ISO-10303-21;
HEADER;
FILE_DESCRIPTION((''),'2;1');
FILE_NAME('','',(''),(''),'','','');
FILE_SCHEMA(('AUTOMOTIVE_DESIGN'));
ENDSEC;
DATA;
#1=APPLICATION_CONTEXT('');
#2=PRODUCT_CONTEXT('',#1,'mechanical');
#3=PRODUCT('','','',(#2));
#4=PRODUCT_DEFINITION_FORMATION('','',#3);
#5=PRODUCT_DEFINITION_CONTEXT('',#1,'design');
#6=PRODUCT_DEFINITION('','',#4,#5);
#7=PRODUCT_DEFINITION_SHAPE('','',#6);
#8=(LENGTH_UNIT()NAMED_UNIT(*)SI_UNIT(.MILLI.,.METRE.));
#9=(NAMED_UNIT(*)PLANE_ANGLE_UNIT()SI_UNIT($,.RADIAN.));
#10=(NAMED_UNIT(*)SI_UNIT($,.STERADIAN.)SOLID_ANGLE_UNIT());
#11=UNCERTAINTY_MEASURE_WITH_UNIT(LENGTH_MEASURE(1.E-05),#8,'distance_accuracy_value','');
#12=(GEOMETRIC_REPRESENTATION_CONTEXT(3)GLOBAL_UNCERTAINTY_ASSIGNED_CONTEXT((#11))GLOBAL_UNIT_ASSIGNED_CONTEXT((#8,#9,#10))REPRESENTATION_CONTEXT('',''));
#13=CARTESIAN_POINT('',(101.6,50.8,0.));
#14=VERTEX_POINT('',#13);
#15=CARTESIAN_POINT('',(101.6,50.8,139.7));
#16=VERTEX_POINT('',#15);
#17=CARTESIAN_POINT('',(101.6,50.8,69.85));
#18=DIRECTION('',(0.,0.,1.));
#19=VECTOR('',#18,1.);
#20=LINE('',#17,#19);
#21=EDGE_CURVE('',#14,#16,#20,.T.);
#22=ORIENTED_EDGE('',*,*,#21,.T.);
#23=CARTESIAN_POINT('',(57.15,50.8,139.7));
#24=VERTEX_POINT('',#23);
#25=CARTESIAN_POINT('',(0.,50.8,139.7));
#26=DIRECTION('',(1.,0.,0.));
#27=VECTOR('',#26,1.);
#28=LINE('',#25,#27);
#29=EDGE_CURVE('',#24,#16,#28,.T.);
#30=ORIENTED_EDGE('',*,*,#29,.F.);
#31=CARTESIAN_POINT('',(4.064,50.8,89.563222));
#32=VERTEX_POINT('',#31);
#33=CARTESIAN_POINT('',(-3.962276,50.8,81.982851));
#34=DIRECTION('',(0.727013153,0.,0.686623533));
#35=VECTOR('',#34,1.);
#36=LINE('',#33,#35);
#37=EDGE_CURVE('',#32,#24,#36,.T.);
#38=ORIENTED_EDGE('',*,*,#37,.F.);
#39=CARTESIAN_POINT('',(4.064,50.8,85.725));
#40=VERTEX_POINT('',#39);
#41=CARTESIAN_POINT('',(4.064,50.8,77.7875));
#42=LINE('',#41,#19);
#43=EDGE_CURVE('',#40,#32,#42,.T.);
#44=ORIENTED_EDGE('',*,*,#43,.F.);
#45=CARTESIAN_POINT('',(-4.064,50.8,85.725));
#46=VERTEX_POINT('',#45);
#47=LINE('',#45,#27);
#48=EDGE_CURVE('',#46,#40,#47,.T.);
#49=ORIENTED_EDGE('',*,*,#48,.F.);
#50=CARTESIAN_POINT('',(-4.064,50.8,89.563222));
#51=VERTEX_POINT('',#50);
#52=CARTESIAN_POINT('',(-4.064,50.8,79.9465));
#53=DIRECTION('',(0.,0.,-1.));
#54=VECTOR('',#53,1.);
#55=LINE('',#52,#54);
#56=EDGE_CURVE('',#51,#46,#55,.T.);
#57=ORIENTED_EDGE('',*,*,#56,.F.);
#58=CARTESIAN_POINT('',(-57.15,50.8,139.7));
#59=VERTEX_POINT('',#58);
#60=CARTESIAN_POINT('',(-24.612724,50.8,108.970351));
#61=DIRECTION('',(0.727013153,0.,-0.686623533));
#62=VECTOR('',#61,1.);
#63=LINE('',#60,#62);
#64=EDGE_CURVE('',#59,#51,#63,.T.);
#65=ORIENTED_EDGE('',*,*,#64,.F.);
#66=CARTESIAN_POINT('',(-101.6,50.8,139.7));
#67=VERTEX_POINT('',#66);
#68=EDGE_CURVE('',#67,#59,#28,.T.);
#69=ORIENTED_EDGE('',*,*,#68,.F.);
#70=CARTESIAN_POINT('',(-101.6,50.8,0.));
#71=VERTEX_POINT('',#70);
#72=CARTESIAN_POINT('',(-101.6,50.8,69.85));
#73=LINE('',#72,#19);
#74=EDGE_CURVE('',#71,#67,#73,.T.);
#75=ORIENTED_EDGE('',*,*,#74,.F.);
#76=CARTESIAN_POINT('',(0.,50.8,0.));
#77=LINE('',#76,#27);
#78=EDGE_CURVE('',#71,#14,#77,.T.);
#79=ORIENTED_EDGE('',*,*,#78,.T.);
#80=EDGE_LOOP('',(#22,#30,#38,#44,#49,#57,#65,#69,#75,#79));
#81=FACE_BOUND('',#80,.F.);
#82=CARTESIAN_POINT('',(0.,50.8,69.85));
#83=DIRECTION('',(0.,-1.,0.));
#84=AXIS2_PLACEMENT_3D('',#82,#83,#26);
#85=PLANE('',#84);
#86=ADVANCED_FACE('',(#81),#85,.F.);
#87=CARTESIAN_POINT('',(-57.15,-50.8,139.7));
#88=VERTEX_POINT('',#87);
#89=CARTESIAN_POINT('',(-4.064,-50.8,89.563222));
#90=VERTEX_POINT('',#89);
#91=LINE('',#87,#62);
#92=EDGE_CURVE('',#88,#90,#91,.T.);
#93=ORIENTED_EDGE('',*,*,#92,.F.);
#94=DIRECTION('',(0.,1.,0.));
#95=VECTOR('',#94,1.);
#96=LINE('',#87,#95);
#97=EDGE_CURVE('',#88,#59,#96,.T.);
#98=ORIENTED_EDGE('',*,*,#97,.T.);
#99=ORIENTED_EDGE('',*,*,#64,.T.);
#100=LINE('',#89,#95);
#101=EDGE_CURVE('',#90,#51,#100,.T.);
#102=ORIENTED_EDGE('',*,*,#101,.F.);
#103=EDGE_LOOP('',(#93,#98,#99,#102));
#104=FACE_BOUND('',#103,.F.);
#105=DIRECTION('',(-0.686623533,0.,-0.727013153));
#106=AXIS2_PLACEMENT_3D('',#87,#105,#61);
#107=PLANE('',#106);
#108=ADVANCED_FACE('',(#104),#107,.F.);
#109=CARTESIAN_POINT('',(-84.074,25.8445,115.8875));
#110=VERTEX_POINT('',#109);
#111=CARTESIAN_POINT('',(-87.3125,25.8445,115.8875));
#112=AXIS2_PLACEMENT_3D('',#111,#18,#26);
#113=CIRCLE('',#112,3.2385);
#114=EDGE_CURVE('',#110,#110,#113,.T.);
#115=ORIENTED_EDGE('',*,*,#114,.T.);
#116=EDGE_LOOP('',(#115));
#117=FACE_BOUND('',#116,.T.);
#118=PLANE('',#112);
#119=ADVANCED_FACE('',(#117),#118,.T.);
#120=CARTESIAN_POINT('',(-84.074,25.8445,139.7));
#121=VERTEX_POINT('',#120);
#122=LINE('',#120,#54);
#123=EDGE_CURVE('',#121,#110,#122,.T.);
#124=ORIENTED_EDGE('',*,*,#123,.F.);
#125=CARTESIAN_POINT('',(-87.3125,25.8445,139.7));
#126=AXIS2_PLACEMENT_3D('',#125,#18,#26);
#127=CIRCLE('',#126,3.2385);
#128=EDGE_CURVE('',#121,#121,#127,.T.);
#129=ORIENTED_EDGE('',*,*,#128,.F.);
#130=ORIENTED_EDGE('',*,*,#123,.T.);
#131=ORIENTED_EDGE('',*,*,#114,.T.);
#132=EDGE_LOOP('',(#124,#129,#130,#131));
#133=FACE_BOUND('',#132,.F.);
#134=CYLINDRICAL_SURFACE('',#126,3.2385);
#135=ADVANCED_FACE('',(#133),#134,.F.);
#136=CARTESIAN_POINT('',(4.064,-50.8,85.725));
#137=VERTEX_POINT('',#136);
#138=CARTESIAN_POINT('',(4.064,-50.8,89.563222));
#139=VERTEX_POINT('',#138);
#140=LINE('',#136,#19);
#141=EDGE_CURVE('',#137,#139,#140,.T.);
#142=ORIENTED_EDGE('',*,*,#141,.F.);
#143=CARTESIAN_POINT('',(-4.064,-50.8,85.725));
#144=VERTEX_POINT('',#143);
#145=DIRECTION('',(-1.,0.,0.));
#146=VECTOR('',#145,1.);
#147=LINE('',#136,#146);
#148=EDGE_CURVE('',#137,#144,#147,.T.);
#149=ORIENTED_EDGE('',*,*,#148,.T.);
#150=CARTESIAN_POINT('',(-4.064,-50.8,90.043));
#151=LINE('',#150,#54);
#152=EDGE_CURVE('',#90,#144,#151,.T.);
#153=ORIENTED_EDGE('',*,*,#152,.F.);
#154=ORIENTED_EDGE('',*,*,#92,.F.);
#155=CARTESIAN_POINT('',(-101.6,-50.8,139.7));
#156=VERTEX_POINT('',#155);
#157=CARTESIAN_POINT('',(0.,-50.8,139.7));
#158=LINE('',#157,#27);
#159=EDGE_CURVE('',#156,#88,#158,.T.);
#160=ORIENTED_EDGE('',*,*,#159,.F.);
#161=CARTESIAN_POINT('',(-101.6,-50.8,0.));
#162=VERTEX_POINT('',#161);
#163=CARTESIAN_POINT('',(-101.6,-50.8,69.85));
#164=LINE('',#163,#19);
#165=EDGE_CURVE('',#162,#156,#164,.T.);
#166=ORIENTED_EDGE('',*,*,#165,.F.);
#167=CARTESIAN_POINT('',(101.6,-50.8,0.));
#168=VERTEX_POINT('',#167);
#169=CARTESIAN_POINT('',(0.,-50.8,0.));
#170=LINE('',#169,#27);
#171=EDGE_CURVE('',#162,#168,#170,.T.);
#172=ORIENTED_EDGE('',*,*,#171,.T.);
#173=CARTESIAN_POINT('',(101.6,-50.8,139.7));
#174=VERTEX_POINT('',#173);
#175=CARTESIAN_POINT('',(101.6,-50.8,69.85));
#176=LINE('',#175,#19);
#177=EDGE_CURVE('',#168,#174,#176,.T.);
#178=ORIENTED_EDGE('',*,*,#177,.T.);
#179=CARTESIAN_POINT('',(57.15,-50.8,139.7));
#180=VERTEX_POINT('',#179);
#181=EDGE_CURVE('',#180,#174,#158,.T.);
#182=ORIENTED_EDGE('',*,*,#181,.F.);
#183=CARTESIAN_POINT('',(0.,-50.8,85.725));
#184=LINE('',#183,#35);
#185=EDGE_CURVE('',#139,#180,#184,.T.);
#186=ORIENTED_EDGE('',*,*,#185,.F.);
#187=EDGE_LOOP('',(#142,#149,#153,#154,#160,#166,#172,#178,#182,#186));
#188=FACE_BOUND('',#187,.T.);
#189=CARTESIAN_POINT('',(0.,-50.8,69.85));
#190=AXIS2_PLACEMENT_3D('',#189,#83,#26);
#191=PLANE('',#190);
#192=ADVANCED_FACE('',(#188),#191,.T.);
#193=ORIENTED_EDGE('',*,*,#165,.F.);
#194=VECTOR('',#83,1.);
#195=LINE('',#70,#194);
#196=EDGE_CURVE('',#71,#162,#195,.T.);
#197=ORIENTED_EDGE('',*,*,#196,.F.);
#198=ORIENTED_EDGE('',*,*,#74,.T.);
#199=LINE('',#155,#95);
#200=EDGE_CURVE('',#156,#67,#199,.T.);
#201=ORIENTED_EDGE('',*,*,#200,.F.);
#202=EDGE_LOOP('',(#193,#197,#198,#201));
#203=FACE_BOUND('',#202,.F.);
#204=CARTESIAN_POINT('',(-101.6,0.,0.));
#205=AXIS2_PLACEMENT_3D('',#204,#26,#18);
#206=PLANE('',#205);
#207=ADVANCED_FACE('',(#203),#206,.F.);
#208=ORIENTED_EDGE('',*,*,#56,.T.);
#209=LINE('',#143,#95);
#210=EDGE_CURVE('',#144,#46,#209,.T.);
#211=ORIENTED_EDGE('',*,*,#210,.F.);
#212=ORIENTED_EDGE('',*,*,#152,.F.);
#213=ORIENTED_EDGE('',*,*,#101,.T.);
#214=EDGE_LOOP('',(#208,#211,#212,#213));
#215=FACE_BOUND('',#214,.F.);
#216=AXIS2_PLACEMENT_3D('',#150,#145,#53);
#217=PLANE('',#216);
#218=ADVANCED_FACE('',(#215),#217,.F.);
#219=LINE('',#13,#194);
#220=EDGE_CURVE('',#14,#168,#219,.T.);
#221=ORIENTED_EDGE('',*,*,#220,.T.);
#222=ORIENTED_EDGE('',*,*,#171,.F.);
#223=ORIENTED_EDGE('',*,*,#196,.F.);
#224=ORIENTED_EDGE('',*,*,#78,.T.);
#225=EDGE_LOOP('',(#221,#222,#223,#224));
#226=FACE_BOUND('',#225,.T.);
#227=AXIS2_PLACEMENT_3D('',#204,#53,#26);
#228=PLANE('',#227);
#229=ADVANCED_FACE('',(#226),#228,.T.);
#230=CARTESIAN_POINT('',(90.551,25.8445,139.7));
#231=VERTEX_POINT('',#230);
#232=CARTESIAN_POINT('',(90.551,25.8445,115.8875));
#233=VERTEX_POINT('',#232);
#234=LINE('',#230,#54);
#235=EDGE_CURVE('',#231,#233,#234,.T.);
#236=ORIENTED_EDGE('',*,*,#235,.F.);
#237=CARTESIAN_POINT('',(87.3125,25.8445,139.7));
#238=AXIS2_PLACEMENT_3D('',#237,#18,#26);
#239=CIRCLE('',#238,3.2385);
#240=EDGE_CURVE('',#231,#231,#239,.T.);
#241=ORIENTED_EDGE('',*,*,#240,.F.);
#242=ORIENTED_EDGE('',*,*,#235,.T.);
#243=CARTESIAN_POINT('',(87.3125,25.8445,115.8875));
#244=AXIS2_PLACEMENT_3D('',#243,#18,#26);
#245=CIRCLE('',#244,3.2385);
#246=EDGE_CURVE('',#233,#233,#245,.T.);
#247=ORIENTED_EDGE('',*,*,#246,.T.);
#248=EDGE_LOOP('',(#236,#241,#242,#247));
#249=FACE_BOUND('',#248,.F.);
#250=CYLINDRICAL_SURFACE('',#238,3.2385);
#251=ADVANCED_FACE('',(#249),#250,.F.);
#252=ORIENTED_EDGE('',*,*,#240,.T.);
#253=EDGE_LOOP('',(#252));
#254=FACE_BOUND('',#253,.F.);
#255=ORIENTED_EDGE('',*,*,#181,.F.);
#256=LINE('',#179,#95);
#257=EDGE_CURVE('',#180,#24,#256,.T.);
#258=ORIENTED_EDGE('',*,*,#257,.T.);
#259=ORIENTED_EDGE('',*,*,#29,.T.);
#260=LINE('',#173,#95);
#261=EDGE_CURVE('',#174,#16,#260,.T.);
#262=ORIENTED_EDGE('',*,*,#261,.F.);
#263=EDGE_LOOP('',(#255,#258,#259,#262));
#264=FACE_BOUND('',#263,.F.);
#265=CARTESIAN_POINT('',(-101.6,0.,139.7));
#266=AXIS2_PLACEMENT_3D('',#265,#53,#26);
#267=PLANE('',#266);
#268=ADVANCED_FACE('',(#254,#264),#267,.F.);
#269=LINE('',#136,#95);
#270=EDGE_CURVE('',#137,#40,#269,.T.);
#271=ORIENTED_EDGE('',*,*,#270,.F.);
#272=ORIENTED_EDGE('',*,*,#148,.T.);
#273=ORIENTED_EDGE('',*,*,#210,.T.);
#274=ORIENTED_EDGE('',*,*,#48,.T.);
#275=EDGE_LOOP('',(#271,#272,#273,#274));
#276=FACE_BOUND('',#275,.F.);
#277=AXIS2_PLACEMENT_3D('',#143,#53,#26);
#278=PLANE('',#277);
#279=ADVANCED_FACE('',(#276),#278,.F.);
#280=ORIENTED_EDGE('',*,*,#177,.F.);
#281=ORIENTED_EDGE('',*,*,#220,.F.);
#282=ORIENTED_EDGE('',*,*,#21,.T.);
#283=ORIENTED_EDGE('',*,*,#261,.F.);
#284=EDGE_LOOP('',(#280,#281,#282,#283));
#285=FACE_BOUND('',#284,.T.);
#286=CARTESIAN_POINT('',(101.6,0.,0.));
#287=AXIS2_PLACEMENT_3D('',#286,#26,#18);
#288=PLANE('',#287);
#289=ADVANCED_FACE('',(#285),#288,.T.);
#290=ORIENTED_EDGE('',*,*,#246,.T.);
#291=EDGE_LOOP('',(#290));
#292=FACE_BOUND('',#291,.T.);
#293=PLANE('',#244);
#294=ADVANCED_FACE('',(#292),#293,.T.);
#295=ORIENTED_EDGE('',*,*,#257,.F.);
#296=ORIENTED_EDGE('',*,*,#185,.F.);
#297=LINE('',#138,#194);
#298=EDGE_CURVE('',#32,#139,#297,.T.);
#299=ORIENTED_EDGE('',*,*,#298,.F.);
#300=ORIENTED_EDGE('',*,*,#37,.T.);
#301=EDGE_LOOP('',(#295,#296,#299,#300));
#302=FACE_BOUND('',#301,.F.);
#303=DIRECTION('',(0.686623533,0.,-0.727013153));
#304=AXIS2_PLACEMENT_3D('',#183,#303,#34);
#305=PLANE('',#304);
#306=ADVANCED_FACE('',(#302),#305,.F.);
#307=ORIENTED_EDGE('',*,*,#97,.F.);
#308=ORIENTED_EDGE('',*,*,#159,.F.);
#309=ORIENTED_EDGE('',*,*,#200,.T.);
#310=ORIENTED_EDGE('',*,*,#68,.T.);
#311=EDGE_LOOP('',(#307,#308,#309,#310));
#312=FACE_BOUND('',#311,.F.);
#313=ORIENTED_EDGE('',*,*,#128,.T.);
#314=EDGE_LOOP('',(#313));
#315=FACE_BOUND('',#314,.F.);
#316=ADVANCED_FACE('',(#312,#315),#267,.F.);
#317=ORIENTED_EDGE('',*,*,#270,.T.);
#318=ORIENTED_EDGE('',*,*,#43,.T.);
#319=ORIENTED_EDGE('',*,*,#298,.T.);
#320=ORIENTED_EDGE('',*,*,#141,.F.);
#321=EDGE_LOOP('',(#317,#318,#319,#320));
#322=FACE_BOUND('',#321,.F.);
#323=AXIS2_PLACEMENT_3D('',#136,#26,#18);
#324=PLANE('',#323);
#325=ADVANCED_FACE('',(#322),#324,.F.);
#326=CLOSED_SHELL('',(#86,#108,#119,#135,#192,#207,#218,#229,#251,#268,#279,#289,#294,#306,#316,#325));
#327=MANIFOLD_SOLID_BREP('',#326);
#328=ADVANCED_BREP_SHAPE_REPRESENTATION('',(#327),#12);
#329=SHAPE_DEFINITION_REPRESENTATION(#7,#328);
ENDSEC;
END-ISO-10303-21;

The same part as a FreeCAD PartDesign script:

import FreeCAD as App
import Part
import Sketcher
from FreeCAD import Vector
Q = App.Units.Quantity

doc = App.newDocument("Part")
body = doc.addObject("PartDesign::Body", "Body")

sketch1 = body.newObject("Sketcher::SketchObject", "Sketch")
sketch1.AttachmentSupport = (doc.getObject("XZ_Plane"), [""])
sketch1.MapMode = "FlatFace"
sketch1.addGeometry(Part.LineSegment(Vector(-101.6, 139.7, 0), Vector(-101.6, 0, 0)), False)
sketch1.addGeometry(Part.LineSegment(Vector(-101.6, 0, 0), Vector(101.6, 0, 0)), False)
sketch1.addGeometry(Part.LineSegment(Vector(101.6, 0, 0), Vector(101.6, 139.7, 0)), False)
sketch1.addGeometry(Part.LineSegment(Vector(101.6, 139.7, 0), Vector(-101.6, 139.7, 0)), False)
sketch1.addConstraint(Sketcher.Constraint("Coincident", 0, 2, 1, 1))
sketch1.addConstraint(Sketcher.Constraint("Coincident", 1, 2, 2, 1))
sketch1.addConstraint(Sketcher.Constraint("Coincident", 2, 2, 3, 1))
sketch1.addConstraint(Sketcher.Constraint("Coincident", 3, 2, 0, 1))
sketch1.addConstraint(Sketcher.Constraint("Vertical", 0))
sketch1.addConstraint(Sketcher.Constraint("Horizontal", 1))
sketch1.addConstraint(Sketcher.Constraint("Vertical", 2))
sketch1.addConstraint(Sketcher.Constraint("Horizontal", 3))
sketch1.addConstraint(Sketcher.Constraint("Symmetric", 0, 2, 1, 2, -1, 1))
sketch1.addConstraint(Sketcher.Constraint("DistanceX", 1, 1, 1, 2, Q("8 in")))
sketch1.addConstraint(Sketcher.Constraint("DistanceY", 0, 2, 0, 1, Q("5.5 in")))
pad1 = body.newObject("PartDesign::Pad", "Pad")
pad1.Profile = sketch1
pad1.Length = Q("4 in")
pad1.Midplane = True

sketch2 = body.newObject("Sketcher::SketchObject", "Sketch001")
sketch2.AttachmentSupport = (doc.getObject("XZ_Plane"), [""])
sketch2.MapMode = "FlatFace"
sketch2.AttachmentOffset = App.Placement(Vector(0, 0, 2 * 25.4), App.Rotation())
sketch2.addGeometry(Part.LineSegment(Vector(57.15, 139.7, 0), Vector(-57.15, 139.7, 0)), False)
sketch2.addGeometry(Part.LineSegment(Vector(-57.15, 139.7, 0), Vector(0, 85.725, 0)), False)
sketch2.addGeometry(Part.LineSegment(Vector(0, 85.725, 0), Vector(57.15, 139.7, 0)), False)
sketch2.addConstraint(Sketcher.Constraint("Coincident", 0, 2, 1, 1))
sketch2.addConstraint(Sketcher.Constraint("Coincident", 1, 2, 2, 1))
sketch2.addConstraint(Sketcher.Constraint("Coincident", 2, 2, 0, 1))
sketch2.addConstraint(Sketcher.Constraint("Horizontal", 0))
sketch2.addConstraint(Sketcher.Constraint("PointOnObject", 1, 2, -2))
sketch2.addConstraint(Sketcher.Constraint("Equal", 1, 2))
sketch2.addConstraint(Sketcher.Constraint("DistanceX", 0, 2, 0, 1, Q("4.5 in")))
sketch2.addConstraint(Sketcher.Constraint("DistanceY", -1, 1, 0, 2, Q("5.5 in")))
sketch2.addConstraint(Sketcher.Constraint("DistanceY", -1, 1, 1, 2, Q("3.375 in")))
pocket1 = body.newObject("PartDesign::Pocket", "Pocket")
pocket1.Profile = sketch2
pocket1.Type = "ThroughAll"

sketch3 = body.newObject("Sketcher::SketchObject", "Sketch002")
sketch3.AttachmentSupport = (doc.getObject("XZ_Plane"), [""])
sketch3.MapMode = "FlatFace"
sketch3.AttachmentOffset = App.Placement(Vector(0, 0, 2 * 25.4), App.Rotation())
sketch3.addGeometry(Part.LineSegment(Vector(-4.064, 90.043, 0), Vector(-4.064, 85.725, 0)), False)
sketch3.addGeometry(Part.LineSegment(Vector(-4.064, 85.725, 0), Vector(4.064, 85.725, 0)), False)
sketch3.addGeometry(Part.LineSegment(Vector(4.064, 85.725, 0), Vector(4.064, 90.043, 0)), False)
sketch3.addGeometry(Part.LineSegment(Vector(4.064, 90.043, 0), Vector(-4.064, 90.043, 0)), False)
sketch3.addConstraint(Sketcher.Constraint("Coincident", 0, 2, 1, 1))
sketch3.addConstraint(Sketcher.Constraint("Coincident", 1, 2, 2, 1))
sketch3.addConstraint(Sketcher.Constraint("Coincident", 2, 2, 3, 1))
sketch3.addConstraint(Sketcher.Constraint("Coincident", 3, 2, 0, 1))
sketch3.addConstraint(Sketcher.Constraint("Vertical", 0))
sketch3.addConstraint(Sketcher.Constraint("Horizontal", 1))
sketch3.addConstraint(Sketcher.Constraint("Vertical", 2))
sketch3.addConstraint(Sketcher.Constraint("Horizontal", 3))
sketch3.addConstraint(Sketcher.Constraint("DistanceX", 1, 1, 1, 2, Q("0.32 in")))
sketch3.addConstraint(Sketcher.Constraint("DistanceY", 0, 2, 0, 1, Q("0.17 in")))
sketch3.addConstraint(Sketcher.Constraint("DistanceX", 0, 2, -1, 1, Q("0.16 in")))
sketch3.addConstraint(Sketcher.Constraint("DistanceY", -1, 1, 0, 2, Q("3.375 in")))
pocket2 = body.newObject("PartDesign::Pocket", "Pocket001")
pocket2.Profile = sketch3
pocket2.Type = "ThroughAll"

sketch4 = body.newObject("Sketcher::SketchObject", "Sketch003")
sketch4.AttachmentSupport = (doc.getObject("XY_Plane"), [""])
sketch4.MapMode = "FlatFace"
sketch4.AttachmentOffset = App.Placement(Vector(0, 0, 5.5 * 25.4), App.Rotation())
sketch4.addGeometry(Part.Circle(Vector(-87.3125, 25.8445, 0), Vector(0, 0, 1), 3.2385), False)
sketch4.addGeometry(Part.Circle(Vector(87.3125, 25.8445, 0), Vector(0, 0, 1), 3.2385), False)
sketch4.addConstraint(Sketcher.Constraint("Equal", 0, 1))
sketch4.addConstraint(Sketcher.Constraint("Symmetric", 0, 3, 1, 3, -2))
sketch4.addConstraint(Sketcher.Constraint("Diameter", 0, Q("0.255 in")))
sketch4.addConstraint(Sketcher.Constraint("DistanceX", 0, 3, -1, 1, Q("3.4375 in")))
sketch4.addConstraint(Sketcher.Constraint("DistanceY", -1, 1, 0, 3, Q("1.0175 in")))
pocket3 = body.newObject("PartDesign::Pocket", "Pocket002")
pocket3.Profile = sketch4
pocket3.Length = Q("0.9375 in")

doc.recompute()
